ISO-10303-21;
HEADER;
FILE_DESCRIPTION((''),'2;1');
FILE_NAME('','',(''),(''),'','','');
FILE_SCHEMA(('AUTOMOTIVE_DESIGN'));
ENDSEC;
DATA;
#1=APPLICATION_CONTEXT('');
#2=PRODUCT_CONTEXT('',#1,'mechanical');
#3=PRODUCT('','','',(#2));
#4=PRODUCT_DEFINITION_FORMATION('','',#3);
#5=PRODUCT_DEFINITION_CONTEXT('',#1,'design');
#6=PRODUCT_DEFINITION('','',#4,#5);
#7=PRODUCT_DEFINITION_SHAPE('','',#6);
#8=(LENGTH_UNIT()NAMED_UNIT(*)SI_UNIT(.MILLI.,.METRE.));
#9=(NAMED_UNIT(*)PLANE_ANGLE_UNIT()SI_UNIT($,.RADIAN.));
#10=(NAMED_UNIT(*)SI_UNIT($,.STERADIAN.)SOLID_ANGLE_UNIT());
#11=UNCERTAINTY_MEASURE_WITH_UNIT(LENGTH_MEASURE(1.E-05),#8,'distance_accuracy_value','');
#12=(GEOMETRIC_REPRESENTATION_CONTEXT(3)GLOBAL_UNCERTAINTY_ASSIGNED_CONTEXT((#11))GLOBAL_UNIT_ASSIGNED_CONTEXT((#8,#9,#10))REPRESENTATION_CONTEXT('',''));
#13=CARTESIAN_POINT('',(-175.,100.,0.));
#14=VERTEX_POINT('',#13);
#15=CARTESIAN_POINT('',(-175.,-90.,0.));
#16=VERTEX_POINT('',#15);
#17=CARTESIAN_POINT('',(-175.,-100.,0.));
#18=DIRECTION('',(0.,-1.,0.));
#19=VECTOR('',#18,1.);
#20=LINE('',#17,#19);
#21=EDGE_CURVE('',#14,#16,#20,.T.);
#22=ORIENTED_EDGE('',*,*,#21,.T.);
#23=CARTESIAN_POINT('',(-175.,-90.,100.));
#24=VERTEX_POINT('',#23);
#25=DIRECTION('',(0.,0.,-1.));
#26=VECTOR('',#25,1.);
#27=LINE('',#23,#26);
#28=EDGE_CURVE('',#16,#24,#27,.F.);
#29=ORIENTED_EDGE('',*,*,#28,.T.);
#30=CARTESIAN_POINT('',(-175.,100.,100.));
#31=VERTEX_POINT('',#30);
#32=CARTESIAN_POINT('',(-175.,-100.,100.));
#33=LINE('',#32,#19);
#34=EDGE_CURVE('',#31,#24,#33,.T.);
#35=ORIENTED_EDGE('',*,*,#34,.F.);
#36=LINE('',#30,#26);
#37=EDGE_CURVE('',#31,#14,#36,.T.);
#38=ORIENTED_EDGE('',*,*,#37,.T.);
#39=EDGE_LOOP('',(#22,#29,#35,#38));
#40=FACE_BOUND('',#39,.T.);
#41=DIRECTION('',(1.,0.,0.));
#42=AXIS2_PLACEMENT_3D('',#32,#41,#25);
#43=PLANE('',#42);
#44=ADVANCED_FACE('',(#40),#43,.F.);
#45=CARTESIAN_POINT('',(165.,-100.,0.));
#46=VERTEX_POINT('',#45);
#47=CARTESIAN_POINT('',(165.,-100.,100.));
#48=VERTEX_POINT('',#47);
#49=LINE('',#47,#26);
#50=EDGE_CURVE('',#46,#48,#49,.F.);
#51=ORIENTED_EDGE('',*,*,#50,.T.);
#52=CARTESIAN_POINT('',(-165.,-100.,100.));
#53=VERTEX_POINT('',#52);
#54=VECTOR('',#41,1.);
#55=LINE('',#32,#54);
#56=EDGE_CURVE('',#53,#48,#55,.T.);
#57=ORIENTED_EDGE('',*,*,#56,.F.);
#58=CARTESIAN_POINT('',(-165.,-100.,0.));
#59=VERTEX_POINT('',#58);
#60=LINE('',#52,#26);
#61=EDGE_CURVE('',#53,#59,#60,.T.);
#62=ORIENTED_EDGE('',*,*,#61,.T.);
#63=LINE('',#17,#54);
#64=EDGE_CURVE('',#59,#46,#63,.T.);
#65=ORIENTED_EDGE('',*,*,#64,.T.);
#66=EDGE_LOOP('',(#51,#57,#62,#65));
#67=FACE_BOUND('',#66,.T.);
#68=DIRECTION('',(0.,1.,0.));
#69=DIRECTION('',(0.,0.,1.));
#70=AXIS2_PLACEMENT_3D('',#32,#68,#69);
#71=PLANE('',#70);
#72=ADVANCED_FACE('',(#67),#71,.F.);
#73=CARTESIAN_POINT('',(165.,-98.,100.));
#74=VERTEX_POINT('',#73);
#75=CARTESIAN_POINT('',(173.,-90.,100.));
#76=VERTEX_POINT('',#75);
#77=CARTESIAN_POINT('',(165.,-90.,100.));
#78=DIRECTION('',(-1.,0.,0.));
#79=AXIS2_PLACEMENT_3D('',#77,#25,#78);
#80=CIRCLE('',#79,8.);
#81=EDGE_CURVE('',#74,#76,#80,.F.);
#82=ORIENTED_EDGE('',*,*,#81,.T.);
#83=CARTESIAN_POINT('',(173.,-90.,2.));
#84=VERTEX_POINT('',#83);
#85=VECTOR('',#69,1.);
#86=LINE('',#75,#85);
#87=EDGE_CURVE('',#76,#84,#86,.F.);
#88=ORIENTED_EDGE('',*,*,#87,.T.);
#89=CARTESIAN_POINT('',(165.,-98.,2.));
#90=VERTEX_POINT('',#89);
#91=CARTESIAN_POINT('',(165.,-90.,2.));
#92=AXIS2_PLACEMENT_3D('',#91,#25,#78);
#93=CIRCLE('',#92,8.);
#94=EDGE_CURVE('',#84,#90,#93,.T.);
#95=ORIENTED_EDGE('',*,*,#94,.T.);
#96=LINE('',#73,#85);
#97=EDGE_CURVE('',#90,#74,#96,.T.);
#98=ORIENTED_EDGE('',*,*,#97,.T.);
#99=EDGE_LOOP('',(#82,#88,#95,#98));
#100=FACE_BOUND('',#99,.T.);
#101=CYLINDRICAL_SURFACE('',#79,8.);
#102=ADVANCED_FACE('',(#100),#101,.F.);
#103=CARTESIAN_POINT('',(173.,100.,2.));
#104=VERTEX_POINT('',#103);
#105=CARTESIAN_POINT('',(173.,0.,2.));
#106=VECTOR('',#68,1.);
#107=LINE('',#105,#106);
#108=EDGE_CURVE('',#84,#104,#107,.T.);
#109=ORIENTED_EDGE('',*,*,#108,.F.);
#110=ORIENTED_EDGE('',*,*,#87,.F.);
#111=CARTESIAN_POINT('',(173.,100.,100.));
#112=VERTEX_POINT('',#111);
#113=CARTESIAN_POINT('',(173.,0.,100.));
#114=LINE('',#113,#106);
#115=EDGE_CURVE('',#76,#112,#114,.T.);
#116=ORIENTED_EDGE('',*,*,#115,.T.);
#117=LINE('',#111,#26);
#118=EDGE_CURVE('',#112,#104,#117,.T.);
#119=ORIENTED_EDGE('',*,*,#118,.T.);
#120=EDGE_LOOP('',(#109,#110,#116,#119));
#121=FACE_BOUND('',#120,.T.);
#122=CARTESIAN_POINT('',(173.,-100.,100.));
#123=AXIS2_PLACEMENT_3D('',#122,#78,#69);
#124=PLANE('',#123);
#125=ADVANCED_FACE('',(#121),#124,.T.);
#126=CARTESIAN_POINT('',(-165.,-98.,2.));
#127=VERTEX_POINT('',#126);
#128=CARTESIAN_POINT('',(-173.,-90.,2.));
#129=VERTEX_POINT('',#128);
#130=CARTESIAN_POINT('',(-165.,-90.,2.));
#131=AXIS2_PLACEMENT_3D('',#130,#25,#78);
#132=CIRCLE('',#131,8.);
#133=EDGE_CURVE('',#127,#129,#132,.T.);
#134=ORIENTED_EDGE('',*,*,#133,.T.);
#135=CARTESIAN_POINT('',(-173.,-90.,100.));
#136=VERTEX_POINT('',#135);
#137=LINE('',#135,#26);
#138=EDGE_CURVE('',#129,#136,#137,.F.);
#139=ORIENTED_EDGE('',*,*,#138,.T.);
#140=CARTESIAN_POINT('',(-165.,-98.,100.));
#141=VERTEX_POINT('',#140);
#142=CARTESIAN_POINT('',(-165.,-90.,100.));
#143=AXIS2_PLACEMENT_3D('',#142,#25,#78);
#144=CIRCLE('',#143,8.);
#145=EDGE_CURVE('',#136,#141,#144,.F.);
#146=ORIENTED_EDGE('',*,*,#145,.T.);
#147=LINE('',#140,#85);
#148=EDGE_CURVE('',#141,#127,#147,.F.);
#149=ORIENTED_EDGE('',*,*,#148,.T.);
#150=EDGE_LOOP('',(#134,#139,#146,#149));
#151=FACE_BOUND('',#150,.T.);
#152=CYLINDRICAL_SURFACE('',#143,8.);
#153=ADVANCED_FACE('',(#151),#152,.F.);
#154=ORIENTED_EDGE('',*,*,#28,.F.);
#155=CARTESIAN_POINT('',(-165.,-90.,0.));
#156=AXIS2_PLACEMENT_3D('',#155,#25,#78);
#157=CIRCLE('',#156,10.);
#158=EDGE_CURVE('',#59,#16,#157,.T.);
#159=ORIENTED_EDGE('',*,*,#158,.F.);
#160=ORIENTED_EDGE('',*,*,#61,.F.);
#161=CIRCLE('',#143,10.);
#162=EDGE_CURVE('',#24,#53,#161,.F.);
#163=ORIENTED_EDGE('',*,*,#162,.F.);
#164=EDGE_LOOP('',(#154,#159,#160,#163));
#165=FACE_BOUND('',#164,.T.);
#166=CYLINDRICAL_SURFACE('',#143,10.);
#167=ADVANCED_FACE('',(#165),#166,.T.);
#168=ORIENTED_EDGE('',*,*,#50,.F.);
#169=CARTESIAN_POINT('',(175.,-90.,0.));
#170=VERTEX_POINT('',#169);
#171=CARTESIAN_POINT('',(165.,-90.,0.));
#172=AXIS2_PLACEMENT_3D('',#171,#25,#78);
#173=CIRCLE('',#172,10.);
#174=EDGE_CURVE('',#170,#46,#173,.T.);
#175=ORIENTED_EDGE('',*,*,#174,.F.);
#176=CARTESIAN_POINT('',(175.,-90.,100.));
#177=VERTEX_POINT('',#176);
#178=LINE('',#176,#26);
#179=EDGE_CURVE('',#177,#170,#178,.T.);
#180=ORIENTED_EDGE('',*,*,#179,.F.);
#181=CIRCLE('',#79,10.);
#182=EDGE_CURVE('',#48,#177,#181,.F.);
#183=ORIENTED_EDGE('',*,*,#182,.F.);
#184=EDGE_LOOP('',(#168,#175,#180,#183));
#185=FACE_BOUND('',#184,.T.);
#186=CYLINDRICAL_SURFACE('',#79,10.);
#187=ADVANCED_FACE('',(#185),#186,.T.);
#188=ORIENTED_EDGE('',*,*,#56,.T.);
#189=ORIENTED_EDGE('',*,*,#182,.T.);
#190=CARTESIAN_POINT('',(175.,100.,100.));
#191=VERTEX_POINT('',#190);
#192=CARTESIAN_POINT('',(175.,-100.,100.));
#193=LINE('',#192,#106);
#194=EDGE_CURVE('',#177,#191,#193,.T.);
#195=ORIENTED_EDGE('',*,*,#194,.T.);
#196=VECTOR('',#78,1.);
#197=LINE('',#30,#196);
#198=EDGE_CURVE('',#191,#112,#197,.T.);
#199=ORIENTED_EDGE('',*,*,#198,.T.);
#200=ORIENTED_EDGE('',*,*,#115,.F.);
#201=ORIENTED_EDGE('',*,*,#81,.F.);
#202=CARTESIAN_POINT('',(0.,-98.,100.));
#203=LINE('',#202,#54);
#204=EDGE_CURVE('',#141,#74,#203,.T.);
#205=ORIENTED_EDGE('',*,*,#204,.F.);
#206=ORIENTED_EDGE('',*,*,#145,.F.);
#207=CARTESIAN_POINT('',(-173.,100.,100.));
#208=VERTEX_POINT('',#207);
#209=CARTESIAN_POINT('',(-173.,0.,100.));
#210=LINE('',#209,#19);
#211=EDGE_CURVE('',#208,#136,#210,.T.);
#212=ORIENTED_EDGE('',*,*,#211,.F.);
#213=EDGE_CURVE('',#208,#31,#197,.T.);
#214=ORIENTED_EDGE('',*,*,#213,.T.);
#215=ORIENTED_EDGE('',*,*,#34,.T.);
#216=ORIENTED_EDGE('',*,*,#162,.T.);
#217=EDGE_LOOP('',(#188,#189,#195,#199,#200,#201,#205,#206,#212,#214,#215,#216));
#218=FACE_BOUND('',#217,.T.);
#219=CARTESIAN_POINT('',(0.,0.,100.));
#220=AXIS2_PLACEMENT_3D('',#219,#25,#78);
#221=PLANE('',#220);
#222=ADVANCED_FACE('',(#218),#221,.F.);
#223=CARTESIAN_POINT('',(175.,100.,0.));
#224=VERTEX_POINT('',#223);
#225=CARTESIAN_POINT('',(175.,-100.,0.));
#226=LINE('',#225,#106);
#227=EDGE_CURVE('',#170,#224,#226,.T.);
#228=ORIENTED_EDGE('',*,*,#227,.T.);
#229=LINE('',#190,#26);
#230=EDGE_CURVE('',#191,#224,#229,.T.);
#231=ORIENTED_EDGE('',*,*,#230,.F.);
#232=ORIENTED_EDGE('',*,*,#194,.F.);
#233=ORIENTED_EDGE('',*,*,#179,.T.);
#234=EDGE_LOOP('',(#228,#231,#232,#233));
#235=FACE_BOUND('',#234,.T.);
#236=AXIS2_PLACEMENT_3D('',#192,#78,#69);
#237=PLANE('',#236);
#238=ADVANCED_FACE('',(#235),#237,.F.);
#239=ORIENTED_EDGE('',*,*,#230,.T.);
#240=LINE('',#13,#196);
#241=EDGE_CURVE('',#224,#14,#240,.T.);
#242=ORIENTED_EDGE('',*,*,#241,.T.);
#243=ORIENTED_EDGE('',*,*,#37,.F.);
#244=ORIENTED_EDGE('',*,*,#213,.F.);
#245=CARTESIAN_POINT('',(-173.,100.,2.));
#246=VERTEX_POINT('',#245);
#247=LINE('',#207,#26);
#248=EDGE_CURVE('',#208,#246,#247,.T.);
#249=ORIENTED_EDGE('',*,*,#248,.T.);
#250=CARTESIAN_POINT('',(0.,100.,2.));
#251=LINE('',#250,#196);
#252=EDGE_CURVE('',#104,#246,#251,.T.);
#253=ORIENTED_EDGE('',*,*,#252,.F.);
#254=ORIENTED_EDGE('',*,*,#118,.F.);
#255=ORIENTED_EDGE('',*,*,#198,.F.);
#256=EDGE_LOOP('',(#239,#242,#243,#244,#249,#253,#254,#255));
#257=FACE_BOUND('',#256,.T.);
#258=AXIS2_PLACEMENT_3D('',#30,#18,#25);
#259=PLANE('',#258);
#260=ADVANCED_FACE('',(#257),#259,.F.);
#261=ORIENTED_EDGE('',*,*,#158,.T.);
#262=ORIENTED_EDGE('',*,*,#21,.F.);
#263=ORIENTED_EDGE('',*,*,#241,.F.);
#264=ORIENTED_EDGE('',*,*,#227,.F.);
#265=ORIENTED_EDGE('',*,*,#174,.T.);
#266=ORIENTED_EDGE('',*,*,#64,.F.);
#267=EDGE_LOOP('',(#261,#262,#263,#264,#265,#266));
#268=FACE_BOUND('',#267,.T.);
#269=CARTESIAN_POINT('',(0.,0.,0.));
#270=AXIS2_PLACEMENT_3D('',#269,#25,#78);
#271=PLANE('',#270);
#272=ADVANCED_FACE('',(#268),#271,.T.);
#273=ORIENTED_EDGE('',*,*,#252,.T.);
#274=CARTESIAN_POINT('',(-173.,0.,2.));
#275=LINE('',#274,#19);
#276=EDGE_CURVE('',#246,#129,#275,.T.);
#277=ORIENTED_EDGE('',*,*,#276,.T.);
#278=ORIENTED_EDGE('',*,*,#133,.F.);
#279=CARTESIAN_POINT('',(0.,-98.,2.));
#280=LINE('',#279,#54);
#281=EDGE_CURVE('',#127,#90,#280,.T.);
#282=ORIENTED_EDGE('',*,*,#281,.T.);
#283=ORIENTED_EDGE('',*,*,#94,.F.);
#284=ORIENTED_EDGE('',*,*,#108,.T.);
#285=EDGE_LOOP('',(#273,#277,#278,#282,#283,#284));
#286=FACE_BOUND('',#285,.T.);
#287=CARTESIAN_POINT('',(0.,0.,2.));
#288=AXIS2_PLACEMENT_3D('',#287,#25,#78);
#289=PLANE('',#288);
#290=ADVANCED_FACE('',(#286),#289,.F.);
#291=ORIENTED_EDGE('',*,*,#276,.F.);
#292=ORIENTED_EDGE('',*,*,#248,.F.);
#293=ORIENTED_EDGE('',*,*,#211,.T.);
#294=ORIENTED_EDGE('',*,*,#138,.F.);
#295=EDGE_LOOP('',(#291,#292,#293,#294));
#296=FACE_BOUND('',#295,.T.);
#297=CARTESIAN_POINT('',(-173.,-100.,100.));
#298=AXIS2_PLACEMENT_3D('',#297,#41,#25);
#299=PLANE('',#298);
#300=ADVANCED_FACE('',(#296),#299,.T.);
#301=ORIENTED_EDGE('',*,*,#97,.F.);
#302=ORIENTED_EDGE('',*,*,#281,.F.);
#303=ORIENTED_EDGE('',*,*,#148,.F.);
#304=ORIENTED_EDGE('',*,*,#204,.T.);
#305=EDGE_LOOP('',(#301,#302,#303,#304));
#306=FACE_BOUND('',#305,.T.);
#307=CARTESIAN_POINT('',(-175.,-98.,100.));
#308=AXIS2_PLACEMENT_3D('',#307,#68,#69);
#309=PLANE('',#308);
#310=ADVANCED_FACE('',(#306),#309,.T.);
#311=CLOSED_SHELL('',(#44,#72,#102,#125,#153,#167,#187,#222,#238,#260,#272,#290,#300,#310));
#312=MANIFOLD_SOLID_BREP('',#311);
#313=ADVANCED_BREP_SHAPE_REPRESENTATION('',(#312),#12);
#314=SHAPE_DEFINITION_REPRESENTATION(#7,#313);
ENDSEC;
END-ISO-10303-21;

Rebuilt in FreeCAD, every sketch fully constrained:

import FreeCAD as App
import Part
import Sketcher
from FreeCAD import Vector


def edges_at(feature, points):
    """Names of the edges that pass closest to the given points."""
    edges = feature.Shape.Edges
    near = lambda p: min(range(len(edges)), key=lambda i: edges[i].distToShape(Part.Vertex(*p))[0])
    return sorted({f"Edge{near(p) + 1}" for p in points})


def faces_at(feature, points):
    """Names of the faces that lie closest to the given points."""
    faces = feature.Shape.Faces
    near = lambda p: min(range(len(faces)), key=lambda i: faces[i].distToShape(Part.Vertex(*p))[0])
    return sorted({f"Face{near(p) + 1}" for p in points})


def add_polygon(sketch, points):
    """Adds a closed chain of lines whose ends are joined by coincident constraints."""
    first, n = sketch.GeometryCount, len(points)
    for a, b in zip(points, points[1:] + points[:1]):
        sketch.addGeometry(Part.LineSegment(App.Vector(*a, 0), App.Vector(*b, 0)), False)
    for i in range(n):
        sketch.addConstraint(Sketcher.Constraint("Coincident", first + i, 2, first + (i + 1) % n, 1))

doc = App.newDocument("Part")
body = doc.addObject("PartDesign::Body", "Body")

sketch1 = body.newObject("Sketcher::SketchObject", "Sketch")
sketch1.AttachmentSupport = (doc.getObject("XY_Plane"), [""])
sketch1.MapMode = "FlatFace"
add_polygon(sketch1, [(-175, 100), (-175, -100), (175, -100), (175, 100)])
sketch1.addConstraint([
    Sketcher.Constraint("Vertical", 0),
    Sketcher.Constraint("Horizontal", 1),
    Sketcher.Constraint("Vertical", 2),
    Sketcher.Constraint("Horizontal", 3),
    Sketcher.Constraint("Symmetric", 0, 2, 2, 2, -1, 1),
    Sketcher.Constraint("DistanceX", 1, 1, 1, 2, 350.0),
    Sketcher.Constraint("DistanceY", 0, 2, 0, 1, 200.0),
])
pad1 = body.newObject("PartDesign::Pad", "Pad")
pad1.Profile = sketch1
pad1.Length = 100
doc.recompute()

fillet = body.newObject("PartDesign::Fillet", "Fillet")
fillet.Base = (pad1, edges_at(pad1, [(175, -100, 50), (-175, -100, 50)]))
fillet.Radius = 10
doc.recompute()

thickness = body.newObject("PartDesign::Thickness", "Thickness")
thickness.Base = (fillet, faces_at(fillet, [(0, 0, 100), (0, 100, 50)]))
thickness.Value = 2
thickness.Reversed = True
thickness.Join = "Intersection"

doc.recompute()
